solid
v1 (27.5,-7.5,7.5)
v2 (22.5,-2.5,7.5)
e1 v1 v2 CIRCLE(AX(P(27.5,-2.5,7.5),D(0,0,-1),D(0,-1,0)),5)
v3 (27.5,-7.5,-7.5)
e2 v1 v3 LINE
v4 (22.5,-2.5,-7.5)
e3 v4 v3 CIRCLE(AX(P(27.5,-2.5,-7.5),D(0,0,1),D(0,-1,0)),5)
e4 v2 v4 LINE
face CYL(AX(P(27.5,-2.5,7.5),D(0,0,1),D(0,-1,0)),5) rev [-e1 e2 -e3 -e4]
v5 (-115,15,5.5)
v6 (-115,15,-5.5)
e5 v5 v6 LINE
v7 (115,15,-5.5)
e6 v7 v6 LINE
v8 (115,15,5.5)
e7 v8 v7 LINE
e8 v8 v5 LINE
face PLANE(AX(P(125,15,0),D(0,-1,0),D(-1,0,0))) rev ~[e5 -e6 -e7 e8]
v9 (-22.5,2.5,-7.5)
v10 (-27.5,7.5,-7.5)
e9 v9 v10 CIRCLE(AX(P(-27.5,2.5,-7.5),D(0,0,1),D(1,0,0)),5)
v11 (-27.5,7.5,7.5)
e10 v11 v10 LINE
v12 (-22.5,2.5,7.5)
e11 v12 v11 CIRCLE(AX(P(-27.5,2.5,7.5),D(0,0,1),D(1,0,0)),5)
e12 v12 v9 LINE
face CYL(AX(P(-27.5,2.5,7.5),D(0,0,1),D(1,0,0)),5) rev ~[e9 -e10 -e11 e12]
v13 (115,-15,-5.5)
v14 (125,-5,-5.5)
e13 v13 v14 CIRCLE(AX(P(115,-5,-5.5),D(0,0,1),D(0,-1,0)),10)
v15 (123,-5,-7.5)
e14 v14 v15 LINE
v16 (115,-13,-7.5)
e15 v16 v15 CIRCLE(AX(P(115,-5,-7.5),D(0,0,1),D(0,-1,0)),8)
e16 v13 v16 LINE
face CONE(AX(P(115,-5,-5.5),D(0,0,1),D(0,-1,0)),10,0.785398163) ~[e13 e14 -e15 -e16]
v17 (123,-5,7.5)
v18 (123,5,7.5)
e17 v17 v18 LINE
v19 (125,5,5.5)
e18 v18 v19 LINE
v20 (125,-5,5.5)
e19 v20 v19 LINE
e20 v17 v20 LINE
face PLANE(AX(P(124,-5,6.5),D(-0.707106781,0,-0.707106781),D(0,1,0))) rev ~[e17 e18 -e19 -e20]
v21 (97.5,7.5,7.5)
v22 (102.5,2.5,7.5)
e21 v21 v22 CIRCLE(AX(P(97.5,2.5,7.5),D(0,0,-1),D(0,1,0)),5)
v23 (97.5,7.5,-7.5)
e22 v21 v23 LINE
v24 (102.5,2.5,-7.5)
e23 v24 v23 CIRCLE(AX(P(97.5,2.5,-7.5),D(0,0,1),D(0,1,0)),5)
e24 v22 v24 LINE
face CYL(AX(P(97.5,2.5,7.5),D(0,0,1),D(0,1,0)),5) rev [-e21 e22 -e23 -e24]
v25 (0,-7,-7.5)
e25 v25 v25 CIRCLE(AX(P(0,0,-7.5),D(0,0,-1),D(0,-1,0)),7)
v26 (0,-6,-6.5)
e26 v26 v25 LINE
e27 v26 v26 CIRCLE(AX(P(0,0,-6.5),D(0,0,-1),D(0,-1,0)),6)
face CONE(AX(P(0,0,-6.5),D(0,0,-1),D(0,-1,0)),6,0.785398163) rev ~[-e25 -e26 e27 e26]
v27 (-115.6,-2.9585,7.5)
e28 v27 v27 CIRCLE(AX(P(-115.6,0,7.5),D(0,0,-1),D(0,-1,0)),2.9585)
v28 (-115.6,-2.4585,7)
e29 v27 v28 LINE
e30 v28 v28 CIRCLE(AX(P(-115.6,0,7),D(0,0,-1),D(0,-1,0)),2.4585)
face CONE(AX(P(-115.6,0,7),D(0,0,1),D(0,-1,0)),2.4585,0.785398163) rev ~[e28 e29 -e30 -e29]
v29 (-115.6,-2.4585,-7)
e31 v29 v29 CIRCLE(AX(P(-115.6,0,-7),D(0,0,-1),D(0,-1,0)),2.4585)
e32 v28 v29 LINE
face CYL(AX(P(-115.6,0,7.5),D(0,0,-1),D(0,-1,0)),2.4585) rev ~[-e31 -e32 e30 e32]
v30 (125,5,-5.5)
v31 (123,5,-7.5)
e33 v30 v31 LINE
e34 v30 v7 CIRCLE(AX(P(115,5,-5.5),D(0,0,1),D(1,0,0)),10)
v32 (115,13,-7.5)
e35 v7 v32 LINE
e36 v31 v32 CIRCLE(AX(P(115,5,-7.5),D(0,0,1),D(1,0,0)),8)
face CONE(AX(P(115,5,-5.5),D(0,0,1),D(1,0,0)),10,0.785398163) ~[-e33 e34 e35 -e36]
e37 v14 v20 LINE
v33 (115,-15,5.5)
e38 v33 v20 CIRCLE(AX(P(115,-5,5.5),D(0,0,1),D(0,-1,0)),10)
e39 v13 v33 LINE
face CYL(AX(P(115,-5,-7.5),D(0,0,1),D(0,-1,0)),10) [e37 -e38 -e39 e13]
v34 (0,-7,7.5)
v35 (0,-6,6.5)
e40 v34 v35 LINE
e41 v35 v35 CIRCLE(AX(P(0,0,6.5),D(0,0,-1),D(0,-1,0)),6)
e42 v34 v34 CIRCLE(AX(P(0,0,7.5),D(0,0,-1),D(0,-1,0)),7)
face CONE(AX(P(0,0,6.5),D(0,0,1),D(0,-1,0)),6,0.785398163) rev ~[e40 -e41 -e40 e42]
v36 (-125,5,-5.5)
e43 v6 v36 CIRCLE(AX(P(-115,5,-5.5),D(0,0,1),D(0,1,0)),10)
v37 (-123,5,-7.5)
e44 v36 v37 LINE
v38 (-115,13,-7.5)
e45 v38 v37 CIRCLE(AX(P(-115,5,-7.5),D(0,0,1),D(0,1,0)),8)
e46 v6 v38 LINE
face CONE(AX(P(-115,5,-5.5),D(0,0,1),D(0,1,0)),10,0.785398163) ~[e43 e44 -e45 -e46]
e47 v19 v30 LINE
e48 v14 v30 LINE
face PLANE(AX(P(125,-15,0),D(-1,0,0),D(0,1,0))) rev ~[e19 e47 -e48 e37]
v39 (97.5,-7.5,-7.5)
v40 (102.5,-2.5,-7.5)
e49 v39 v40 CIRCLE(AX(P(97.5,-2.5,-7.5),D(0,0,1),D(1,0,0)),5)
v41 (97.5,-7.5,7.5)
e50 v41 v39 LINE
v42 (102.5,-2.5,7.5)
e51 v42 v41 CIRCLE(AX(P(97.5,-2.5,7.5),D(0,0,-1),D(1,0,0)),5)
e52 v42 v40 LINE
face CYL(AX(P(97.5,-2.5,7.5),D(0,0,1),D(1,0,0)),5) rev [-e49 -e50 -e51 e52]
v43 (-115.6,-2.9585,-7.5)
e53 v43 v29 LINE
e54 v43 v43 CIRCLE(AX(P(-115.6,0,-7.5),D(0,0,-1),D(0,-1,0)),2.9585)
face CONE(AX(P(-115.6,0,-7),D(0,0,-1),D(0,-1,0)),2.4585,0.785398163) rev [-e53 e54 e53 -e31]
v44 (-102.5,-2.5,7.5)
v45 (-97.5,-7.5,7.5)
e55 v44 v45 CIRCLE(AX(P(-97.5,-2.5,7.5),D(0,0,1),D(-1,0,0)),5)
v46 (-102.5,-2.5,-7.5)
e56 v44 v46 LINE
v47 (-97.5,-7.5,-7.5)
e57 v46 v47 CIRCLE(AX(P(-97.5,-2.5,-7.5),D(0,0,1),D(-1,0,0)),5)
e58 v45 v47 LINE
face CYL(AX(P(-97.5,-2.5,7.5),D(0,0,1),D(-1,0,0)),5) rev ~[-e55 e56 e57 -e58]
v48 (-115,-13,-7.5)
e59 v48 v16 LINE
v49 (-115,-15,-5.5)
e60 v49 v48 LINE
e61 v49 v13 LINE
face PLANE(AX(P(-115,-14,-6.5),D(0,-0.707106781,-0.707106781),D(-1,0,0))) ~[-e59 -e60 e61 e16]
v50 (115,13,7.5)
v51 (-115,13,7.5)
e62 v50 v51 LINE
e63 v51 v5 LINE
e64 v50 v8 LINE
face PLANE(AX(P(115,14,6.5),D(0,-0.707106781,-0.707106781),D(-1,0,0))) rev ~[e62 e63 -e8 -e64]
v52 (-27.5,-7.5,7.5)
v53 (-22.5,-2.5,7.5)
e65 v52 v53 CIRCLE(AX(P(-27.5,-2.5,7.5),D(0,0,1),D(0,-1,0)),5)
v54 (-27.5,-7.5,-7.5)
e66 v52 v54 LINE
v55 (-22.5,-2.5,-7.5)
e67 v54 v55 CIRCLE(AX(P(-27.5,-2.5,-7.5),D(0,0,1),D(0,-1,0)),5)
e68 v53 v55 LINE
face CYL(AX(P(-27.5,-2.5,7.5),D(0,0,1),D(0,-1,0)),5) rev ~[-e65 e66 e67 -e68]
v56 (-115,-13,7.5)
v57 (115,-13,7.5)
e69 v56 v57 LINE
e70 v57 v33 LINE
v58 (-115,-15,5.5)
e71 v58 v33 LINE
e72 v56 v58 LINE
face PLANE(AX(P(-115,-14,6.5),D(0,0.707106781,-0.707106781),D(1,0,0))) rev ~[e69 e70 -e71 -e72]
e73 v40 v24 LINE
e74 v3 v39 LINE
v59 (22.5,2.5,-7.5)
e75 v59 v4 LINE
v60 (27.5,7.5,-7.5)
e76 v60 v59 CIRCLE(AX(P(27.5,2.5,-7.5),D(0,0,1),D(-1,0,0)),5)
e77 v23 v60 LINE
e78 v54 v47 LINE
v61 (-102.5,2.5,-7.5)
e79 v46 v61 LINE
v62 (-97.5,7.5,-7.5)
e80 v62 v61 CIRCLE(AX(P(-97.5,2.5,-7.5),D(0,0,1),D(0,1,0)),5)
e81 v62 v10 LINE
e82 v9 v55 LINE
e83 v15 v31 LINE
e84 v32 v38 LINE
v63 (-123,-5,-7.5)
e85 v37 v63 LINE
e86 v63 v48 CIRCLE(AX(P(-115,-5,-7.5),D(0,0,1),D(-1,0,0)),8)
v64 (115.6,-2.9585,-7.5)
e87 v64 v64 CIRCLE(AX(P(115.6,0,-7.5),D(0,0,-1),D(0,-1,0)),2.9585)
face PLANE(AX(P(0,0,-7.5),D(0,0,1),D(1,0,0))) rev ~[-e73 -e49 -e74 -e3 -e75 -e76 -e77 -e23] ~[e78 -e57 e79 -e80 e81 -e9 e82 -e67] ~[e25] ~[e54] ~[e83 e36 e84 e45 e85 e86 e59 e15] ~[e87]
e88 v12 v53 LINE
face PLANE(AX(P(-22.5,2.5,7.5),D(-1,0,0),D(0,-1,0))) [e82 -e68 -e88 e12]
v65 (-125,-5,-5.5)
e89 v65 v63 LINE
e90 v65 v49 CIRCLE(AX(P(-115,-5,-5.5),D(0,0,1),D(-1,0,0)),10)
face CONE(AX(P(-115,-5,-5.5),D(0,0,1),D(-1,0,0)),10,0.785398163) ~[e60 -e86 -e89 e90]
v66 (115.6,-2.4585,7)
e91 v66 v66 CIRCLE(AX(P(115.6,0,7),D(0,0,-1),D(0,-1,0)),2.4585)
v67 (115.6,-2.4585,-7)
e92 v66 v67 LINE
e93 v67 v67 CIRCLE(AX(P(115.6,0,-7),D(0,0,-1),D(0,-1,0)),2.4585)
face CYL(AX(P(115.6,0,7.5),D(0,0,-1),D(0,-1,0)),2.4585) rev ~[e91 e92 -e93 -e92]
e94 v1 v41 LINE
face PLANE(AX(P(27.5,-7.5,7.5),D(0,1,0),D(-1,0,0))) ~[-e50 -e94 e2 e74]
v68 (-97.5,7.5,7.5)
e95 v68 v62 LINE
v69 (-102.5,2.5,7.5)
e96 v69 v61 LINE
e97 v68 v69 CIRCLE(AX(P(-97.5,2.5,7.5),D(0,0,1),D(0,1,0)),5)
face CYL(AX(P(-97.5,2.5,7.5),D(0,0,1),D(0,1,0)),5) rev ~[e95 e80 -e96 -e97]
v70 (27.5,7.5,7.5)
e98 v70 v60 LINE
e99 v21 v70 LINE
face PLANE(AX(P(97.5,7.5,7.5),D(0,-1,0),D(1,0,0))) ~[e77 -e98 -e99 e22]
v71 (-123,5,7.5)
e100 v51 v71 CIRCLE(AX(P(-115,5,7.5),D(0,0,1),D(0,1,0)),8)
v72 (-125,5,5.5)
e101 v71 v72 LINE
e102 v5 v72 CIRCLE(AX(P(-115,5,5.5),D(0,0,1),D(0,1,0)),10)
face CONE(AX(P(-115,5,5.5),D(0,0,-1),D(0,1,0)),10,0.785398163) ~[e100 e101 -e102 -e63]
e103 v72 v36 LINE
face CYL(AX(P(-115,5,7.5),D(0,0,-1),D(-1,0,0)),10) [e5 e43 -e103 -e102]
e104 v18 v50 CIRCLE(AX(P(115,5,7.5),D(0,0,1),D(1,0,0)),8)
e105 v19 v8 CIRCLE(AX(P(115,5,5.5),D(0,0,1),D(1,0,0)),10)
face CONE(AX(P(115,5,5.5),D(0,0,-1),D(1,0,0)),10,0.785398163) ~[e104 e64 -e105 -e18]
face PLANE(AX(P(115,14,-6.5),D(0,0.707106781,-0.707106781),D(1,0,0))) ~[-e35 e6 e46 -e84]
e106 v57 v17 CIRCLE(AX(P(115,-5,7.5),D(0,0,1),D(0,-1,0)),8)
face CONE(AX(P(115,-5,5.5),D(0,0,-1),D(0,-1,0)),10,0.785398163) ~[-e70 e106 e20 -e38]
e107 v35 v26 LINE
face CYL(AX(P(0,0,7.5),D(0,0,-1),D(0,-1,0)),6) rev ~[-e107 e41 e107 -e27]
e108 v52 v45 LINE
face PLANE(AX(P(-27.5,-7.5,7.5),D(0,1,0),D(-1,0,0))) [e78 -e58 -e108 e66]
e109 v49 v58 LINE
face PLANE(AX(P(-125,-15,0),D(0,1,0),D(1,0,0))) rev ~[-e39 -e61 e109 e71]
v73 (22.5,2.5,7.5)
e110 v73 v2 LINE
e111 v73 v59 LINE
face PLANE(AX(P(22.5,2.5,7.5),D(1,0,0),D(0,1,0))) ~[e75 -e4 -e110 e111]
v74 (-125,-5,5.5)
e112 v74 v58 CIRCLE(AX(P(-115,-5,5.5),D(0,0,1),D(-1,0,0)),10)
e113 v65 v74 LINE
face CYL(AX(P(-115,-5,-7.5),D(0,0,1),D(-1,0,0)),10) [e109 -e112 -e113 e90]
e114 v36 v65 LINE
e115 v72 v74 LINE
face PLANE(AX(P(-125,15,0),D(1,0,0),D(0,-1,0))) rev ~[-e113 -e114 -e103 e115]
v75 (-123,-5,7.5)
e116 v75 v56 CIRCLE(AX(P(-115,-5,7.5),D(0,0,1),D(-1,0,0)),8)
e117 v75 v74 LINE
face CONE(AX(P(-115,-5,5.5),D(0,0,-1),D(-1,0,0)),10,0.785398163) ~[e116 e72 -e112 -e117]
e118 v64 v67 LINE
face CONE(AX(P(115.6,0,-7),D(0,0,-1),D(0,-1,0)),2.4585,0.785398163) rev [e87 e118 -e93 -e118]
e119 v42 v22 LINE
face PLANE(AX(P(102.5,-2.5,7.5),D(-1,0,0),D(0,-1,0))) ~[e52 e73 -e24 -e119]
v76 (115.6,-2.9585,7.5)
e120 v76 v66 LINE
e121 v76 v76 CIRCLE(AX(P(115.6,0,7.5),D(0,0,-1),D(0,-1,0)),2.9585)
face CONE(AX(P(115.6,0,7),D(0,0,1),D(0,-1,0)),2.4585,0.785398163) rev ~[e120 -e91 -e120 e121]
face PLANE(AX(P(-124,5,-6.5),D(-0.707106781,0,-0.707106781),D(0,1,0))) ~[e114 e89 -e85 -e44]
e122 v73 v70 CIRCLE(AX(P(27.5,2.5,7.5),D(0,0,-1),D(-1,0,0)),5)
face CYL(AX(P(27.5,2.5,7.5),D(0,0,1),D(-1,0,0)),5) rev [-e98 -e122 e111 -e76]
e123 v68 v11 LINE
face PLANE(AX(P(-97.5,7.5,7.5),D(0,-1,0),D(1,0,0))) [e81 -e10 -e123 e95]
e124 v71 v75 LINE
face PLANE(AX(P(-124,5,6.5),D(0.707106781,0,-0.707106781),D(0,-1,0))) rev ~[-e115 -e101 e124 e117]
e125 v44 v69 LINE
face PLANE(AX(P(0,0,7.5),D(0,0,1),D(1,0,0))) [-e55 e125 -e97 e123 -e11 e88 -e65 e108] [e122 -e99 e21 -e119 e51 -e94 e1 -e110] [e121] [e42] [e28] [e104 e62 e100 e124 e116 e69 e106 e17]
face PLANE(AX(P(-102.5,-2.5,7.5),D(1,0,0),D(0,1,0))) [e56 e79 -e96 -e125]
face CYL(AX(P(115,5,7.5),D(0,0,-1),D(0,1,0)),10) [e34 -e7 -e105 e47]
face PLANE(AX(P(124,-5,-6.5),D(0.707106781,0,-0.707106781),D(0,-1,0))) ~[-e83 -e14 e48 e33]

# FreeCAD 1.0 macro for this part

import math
import FreeCAD as App
import Part
import Sketcher

V = App.Vector
Q = App.Units.Quantity


def edges_at(feature, points):
    """Names of the edges that pass closest to the given points."""
    edges = feature.Shape.Edges
    near = lambda p: min(range(len(edges)), key=lambda i: edges[i].distToShape(Part.Vertex(*p))[0])
    return sorted({f"Edge{near(p) + 1}" for p in points})


def add_polygon(sketch, points):
    """Adds a closed chain of lines whose ends are joined by coincident constraints."""
    first, n = sketch.GeometryCount, len(points)
    for a, b in zip(points, points[1:] + points[:1]):
        sketch.addGeometry(Part.LineSegment(App.Vector(*a, 0), App.Vector(*b, 0)), False)
    for i in range(n):
        sketch.addConstraint(Sketcher.Constraint("Coincident", first + i, 2, first + (i + 1) % n, 1))

doc = App.newDocument("Part")
body = doc.addObject("PartDesign::Body", "Body")

sketch1 = doc.addObject("Sketcher::SketchObject", "Sketch")
body.addObject(sketch1)
sketch1.AttachmentSupport = (doc.XY_Plane, [""])
sketch1.MapMode = "FlatFace"
add_polygon(sketch1, [(-125, 15), (-125, -15), (125, -15), (125, 15)])
sketch1.addConstraint(Sketcher.Constraint("Vertical", 0))
sketch1.addConstraint(Sketcher.Constraint("Horizontal", 1))
sketch1.addConstraint(Sketcher.Constraint("Vertical", 2))
sketch1.addConstraint(Sketcher.Constraint("Horizontal", 3))
sketch1.addConstraint(Sketcher.Constraint("Symmetric", 0, 2, 2, 2, -1, 1))
sketch1.addConstraint(Sketcher.Constraint("DistanceX", 1, 1, 1, 2, Q("250 mm")))
sketch1.addConstraint(Sketcher.Constraint("DistanceY", 0, 2, 0, 1, Q("30 mm")))
pad1 = doc.addObject("PartDesign::Pad", "Pad")
body.addObject(pad1)
pad1.Profile = sketch1
pad1.Length = 15
pad1.Midplane = True

sketch2 = doc.addObject("Sketcher::SketchObject", "Sketch001")
body.addObject(sketch2)
sketch2.AttachmentSupport = (doc.XY_Plane, [""])
sketch2.MapMode = "FlatFace"
sketch2.AttachmentOffset = App.Placement(V(0, 0, 7.5), App.Rotation())
sketch2.addGeometry(Part.Circle(V(-115.6, 0, 0), V(0, 0, 1), 2.5), False)
sketch2.addGeometry(Part.Circle(V(115.6, 0, 0), V(0, 0, 1), 2.5), False)
sketch2.addConstraint(Sketcher.Constraint("Equal", 0, 1))
sketch2.addConstraint(Sketcher.Constraint("Symmetric", 0, 3, 1, 3, -1, 1))
sketch2.addConstraint(Sketcher.Constraint("PointOnObject", 0, 3, -1))
sketch2.addConstraint(Sketcher.Constraint("Diameter", 0, Q("4.917 mm")))
sketch2.addConstraint(Sketcher.Constraint("DistanceX", 0, 3, -1, 1, Q("115.6 mm")))
doc.recompute()
hole = doc.addObject("PartDesign::Hole", "Hole")
body.addObject(hole)
hole.Profile = sketch2
hole.ThreadType = "None"
hole.Diameter = 4.917
hole.DepthType = "ThroughAll"

sketch3 = doc.addObject("Sketcher::SketchObject", "Sketch002")
body.addObject(sketch3)
sketch3.AttachmentSupport = (doc.XY_Plane, [""])
sketch3.MapMode = "FlatFace"
sketch3.AttachmentOffset = App.Placement(V(0, 0, 7.5), App.Rotation())
sketch3.addGeometry(Part.LineSegment(V(-28, 8, 0), V(-98, 8, 0)), False)
sketch3.addGeometry(Part.ArcOfCircle(Part.Circle(V(-98, 2, 0), V(0, 0, 1), 5), math.radians(90), math.radians(180)), False)
sketch3.addGeometry(Part.LineSegment(V(-102, 2, 0), V(-102, -2, 0)), False)
sketch3.addGeometry(Part.ArcOfCircle(Part.Circle(V(-98, -2, 0), V(0, 0, 1), 5), math.radians(180), math.radians(270)), False)
sketch3.addGeometry(Part.LineSegment(V(-98, -8, 0), V(-28, -8, 0)), False)
sketch3.addGeometry(Part.ArcOfCircle(Part.Circle(V(-28, -2, 0), V(0, 0, 1), 5), math.radians(-90), math.radians(0)), False)
sketch3.addGeometry(Part.LineSegment(V(-22, -2, 0), V(-22, 2, 0)), False)
sketch3.addGeometry(Part.ArcOfCircle(Part.Circle(V(-28, 2, 0), V(0, 0, 1), 5), math.radians(0), math.radians(90)), False)
sketch3.addConstraint(Sketcher.Constraint("Tangent", 0, 2, 1, 1))
sketch3.addConstraint(Sketcher.Constraint("Tangent", 1, 2, 2, 1))
sketch3.addConstraint(Sketcher.Constraint("Tangent", 2, 2, 3, 1))
sketch3.addConstraint(Sketcher.Constraint("Tangent", 3, 2, 4, 1))
sketch3.addConstraint(Sketcher.Constraint("Tangent", 4, 2, 5, 1))
sketch3.addConstraint(Sketcher.Constraint("Tangent", 5, 2, 6, 1))
sketch3.addConstraint(Sketcher.Constraint("Tangent", 6, 2, 7, 1))
sketch3.addConstraint(Sketcher.Constraint("Tangent", 7, 2, 0, 1))
sketch3.addConstraint(Sketcher.Constraint("Horizontal", 0))
sketch3.addConstraint(Sketcher.Constraint("Vertical", 2))
sketch3.addConstraint(Sketcher.Constraint("Horizontal", 4))
sketch3.addConstraint(Sketcher.Constraint("Vertical", 6))
sketch3.addConstraint(Sketcher.Constraint("Equal", 1, 3))
sketch3.addConstraint(Sketcher.Constraint("Equal", 3, 5))
sketch3.addConstraint(Sketcher.Constraint("Equal", 5, 7))
sketch3.addConstraint(Sketcher.Constraint("Radius", 1, Q("5 mm")))
sketch3.addConstraint(Sketcher.Constraint("DistanceY", 2, 2, 2, 1, Q("5 mm")))
sketch3.addConstraint(Sketcher.Constraint("DistanceX", 0, 2, 0, 1, Q("70 mm")))
sketch3.addConstraint(Sketcher.Constraint("DistanceX", 1, 3, -1, 1, Q("97.5 mm")))
sketch3.addConstraint(Sketcher.Constraint("DistanceY", -1, 1, 1, 3, Q("2.5 mm")))
pocket1 = doc.addObject("PartDesign::Pocket", "Pocket")
body.addObject(pocket1)
pocket1.Profile = sketch3
pocket1.Type = "ThroughAll"
doc.recompute()

mirrored = doc.addObject("PartDesign::Mirrored", "Mirrored")
body.addObject(mirrored)
mirrored.Originals = [pocket1]
mirrored.MirrorPlane = (doc.YZ_Plane, [""])
body.Tip = mirrored
doc.recompute()

chamfer = doc.addObject("PartDesign::Chamfer", "Chamfer")
body.addObject(chamfer)
chamfer.Base = (mirrored, edges_at(mirrored, [
    (-115.6, 2.458, -7.5),
    (115.6, 2.458, -7.5),
    (-115.6, 2.458, 7.5),
    (115.6, 2.458, 7.5),
]))
chamfer.Size = 0.5

sketch4 = doc.addObject("Sketcher::SketchObject", "Sketch003")
body.addObject(sketch4)
sketch4.AttachmentSupport = (doc.XY_Plane, [""])
sketch4.MapMode = "FlatFace"
sketch4.AttachmentOffset = App.Placement(V(0, 0, 7.5), App.Rotation())
sketch4.addGeometry(Part.Circle(V(0, 0, 0), V(0, 0, 1), 6), False)
sketch4.addConstraint(Sketcher.Constraint("Coincident", 0, 3, -1, 1))
sketch4.addConstraint(Sketcher.Constraint("Diameter", 0, Q("12 mm")))
doc.recompute()
hole2 = doc.addObject("PartDesign::Hole", "Hole001")
body.addObject(hole2)
hole2.Profile = sketch4
hole2.ThreadType = "None"
hole2.Diameter = 12
hole2.DepthType = "ThroughAll"
doc.recompute()

fillet = doc.addObject("PartDesign::Fillet", "Fillet")
body.addObject(fillet)
fillet.Base = (hole2, edges_at(hole2, [
    (-125, 15, 0),
    (-125, -15, 0),
    (125, -15, 0),
    (125, 15, 0),
]))
fillet.Radius = 10
doc.recompute()

chamfer2 = doc.addObject("PartDesign::Chamfer", "Chamfer001")
body.addObject(chamfer2)
chamfer2.Base = (fillet, edges_at(fillet, [
    (0, -15, 7.5),
    (122.071, -12.071, 7.5),
    (0, 15, 7.5),
    (-122.071, 12.071, 7.5),
    (0, -15, -7.5),
    (-122.071, 12.071, -7.5),
    (0, 15, -7.5),
    (122.071, -12.071, -7.5),
]))
chamfer2.Size = 2
doc.recompute()

chamfer3 = doc.addObject("PartDesign::Chamfer", "Chamfer002")
body.addObject(chamfer3)
chamfer3.Base = (chamfer2, edges_at(chamfer2, [(0, 6, 7.5), (0, 6, -7.5)]))
chamfer3.Size = 1

doc.recompute()
